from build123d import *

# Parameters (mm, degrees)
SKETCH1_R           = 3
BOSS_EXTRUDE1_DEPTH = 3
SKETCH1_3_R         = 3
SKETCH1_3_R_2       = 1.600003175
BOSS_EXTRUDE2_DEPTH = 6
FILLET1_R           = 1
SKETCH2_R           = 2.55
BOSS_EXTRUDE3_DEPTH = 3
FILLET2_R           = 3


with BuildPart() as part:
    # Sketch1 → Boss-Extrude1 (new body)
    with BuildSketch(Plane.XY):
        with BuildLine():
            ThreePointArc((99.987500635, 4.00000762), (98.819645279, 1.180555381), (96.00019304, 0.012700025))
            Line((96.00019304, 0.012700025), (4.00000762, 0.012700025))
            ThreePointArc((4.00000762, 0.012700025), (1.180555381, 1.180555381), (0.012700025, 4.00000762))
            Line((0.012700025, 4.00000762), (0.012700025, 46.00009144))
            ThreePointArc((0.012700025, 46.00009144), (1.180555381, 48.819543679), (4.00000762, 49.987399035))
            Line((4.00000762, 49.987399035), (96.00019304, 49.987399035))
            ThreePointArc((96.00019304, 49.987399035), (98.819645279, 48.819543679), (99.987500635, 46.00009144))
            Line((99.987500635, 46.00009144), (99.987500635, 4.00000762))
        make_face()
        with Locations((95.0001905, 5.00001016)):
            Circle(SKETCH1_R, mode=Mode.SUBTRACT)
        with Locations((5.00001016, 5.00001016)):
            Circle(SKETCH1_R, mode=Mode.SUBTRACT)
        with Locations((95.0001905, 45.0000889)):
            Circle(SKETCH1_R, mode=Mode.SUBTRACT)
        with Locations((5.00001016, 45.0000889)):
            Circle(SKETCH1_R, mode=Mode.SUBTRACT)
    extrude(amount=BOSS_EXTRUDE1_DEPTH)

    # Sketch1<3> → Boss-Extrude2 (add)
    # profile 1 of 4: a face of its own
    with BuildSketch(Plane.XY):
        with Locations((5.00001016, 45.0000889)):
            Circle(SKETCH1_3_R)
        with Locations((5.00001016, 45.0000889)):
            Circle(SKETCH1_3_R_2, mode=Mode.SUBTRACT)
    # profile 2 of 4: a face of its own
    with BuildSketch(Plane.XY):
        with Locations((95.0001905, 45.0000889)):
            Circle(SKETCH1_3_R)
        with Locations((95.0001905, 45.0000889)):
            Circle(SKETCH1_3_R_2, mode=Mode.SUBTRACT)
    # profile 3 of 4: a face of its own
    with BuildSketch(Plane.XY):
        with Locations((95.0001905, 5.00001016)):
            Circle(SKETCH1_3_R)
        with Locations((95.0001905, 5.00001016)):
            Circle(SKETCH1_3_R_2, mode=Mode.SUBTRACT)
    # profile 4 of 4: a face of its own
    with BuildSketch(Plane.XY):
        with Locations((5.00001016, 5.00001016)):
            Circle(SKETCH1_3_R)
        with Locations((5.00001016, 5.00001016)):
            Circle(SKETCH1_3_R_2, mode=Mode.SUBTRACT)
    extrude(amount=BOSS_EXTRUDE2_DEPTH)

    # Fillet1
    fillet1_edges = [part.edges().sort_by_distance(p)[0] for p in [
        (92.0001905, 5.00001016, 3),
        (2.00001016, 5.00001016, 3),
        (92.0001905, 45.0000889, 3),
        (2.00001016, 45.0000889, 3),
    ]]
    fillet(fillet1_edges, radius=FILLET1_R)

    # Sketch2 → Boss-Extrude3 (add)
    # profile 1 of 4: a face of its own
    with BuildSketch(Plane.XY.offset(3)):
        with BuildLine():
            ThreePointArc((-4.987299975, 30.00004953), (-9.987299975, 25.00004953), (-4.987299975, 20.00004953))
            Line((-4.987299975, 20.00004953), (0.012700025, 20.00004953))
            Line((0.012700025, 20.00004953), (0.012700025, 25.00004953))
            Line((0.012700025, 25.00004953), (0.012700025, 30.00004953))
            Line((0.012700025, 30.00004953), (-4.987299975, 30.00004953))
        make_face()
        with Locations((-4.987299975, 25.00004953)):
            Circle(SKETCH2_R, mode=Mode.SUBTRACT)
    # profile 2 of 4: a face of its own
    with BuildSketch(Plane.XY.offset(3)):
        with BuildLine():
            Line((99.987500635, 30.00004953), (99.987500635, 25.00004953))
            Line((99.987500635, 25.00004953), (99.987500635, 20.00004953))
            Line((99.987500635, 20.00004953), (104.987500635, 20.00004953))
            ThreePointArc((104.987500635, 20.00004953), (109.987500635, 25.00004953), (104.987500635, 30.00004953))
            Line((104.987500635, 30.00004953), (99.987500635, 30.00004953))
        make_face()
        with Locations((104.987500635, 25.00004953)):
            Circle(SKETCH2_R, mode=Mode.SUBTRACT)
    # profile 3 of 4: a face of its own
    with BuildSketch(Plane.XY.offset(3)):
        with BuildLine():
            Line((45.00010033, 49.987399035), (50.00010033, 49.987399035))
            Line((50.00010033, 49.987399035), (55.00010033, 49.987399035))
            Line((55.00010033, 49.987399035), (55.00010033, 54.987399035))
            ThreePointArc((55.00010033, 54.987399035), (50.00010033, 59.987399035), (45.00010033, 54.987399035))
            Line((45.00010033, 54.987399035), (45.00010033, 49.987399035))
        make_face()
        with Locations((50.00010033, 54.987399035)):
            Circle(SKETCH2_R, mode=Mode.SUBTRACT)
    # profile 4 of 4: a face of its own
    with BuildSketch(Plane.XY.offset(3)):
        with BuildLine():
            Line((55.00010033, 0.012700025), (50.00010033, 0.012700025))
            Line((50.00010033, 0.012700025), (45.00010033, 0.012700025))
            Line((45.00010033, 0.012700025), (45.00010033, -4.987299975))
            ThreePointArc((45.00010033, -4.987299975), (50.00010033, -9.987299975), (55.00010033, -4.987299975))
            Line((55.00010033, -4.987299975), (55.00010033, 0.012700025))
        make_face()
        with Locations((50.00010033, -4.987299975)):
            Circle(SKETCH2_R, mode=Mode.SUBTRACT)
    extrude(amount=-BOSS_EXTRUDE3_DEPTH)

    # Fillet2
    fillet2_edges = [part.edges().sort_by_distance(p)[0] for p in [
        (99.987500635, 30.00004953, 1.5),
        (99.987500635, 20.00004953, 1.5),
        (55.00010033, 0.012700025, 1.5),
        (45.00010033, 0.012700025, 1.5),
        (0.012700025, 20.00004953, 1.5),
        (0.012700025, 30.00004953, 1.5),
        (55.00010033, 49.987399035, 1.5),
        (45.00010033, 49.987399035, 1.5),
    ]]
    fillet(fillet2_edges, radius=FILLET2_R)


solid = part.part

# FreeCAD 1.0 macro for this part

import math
import FreeCAD as App
import Part
import Sketcher

V = App.Vector
Q = App.Units.Quantity


def edges_at(feature, points):
    """Names of the edges that pass closest to the given points."""
    edges = feature.Shape.Edges
    near = lambda p: min(range(len(edges)), key=lambda i: edges[i].distToShape(Part.Vertex(*p))[0])
    return sorted({f"Edge{near(p) + 1}" for p in points})

doc = App.newDocument("Part")
params = doc.addObject("Spreadsheet::Sheet", "Params")
for row, (alias, value) in enumerate([
    ("sketch1_diameter", "6 mm"),
    ("pad1_length", "3 mm"),
    ("sketch2_diameter", "6 mm"),
    ("pad2_length", "6 mm"),
    ("fillet_radius", "1 mm"),
    ("sketch3_radius", "5 mm"),
    ("sketch3_diameter", "5.1 mm"),
    ("sketch3_width", "5 mm"),
    ("pad3_length", "3 mm"),
    ("fillet2_radius", "3 mm"),
], start=1):
    params.set(f"A{row}", alias)
    params.set(f"B{row}", "=" + value)
    params.setAlias(f"B{row}", alias)

body = doc.addObject("PartDesign::Body", "Body")

# Sketch on XY plane
sketch1 = body.newObject("Sketcher::SketchObject", "Sketch")
sketch1.AttachmentSupport = (doc.getObject("XY_Plane"), [""])
sketch1.MapMode = "FlatFace"
sketch1.addGeometry([
    Part.ArcOfCircle(Part.Circle(V(96, 4, 0), V(0, 0, 1), 4), math.radians(-90), math.radians(0)),  # 0
    Part.LineSegment(V(100, 4, 0), V(100, 46, 0)),  # 1
    Part.ArcOfCircle(Part.Circle(V(96, 46, 0), V(0, 0, 1), 4), math.radians(0), math.radians(90)),  # 2
    Part.LineSegment(V(96, 50, 0), V(4, 50, 0)),  # 3
    Part.ArcOfCircle(Part.Circle(V(4, 46, 0), V(0, 0, 1), 4), math.radians(90), math.radians(180)),  # 4
    Part.LineSegment(V(0, 46, 0), V(0, 4, 0)),  # 5
    Part.ArcOfCircle(Part.Circle(V(4, 4, 0), V(0, 0, 1), 4), math.radians(180), math.radians(270)),  # 6
    Part.LineSegment(V(4, 0, 0), V(96, 0, 0)),  # 7
    Part.Circle(V(95, 5, 0), V(0, 0, 1), 3),  # 8
    Part.Circle(V(5, 5, 0), V(0, 0, 1), 3),  # 9
    Part.Circle(V(95, 45, 0), V(0, 0, 1), 3),  # 10
    Part.Circle(V(5, 45, 0), V(0, 0, 1), 3),  # 11
], False)
sketch1.addConstraint([
    Sketcher.Constraint("Tangent", 0, 2, 1, 1),
    Sketcher.Constraint("Tangent", 1, 2, 2, 1),
    Sketcher.Constraint("Tangent", 2, 2, 3, 1),
    Sketcher.Constraint("Tangent", 3, 2, 4, 1),
    Sketcher.Constraint("Tangent", 4, 2, 5, 1),
    Sketcher.Constraint("Tangent", 5, 2, 6, 1),
    Sketcher.Constraint("Tangent", 6, 2, 7, 1),
    Sketcher.Constraint("Tangent", 7, 2, 0, 1),
    Sketcher.Constraint("Vertical", 1),
    Sketcher.Constraint("Horizontal", 3),
    Sketcher.Constraint("Vertical", 5),
    Sketcher.Constraint("Horizontal", 7),
    Sketcher.Constraint("Equal", 0, 2),
    Sketcher.Constraint("Equal", 2, 4),
    Sketcher.Constraint("Equal", 4, 6),
    Sketcher.Constraint("Equal", 8, 9),
    Sketcher.Constraint("Equal", 9, 10),
    Sketcher.Constraint("Equal", 10, 11),
    Sketcher.Constraint("Horizontal", 8, 3, 9, 3),
    Sketcher.Constraint("Horizontal", 10, 3, 11, 3),
    Sketcher.Constraint("Vertical", 8, 3, 10, 3),
    Sketcher.Constraint("Vertical", 9, 3, 11, 3),
    Sketcher.Constraint("Diameter", 8, Q("6 mm")),
    Sketcher.Constraint("Radius", 0, Q("3.987308 mm")),
    Sketcher.Constraint("DistanceX", -1, 1, 0, 2, Q("99.987501 mm")),
    Sketcher.Constraint("DistanceY", -1, 1, 2, 2, Q("49.987399 mm")),
    Sketcher.Constraint("DistanceX", -1, 1, 4, 2, Q("0.0127 mm")),
    Sketcher.Constraint("DistanceY", -1, 1, 6, 2, Q("0.0127 mm")),
    Sketcher.Constraint("DistanceX", -1, 1, 8, 3, Q("95.000191 mm")),
    Sketcher.Constraint("DistanceY", -1, 1, 8, 3, Q("5.00001 mm")),
    Sketcher.Constraint("DistanceX", -1, 1, 9, 3, Q("5.00001 mm")),
    Sketcher.Constraint("DistanceY", -1, 1, 10, 3, Q("45.000089 mm")),
])
sketch1.setExpression("Constraints[22]", "Params.sketch1_diameter")
pad1 = body.newObject("PartDesign::Pad", "Pad")
pad1.Profile = sketch1
pad1.setExpression("Length", "Params.pad1_length")

# Sketch on XY plane
sketch2 = body.newObject("Sketcher::SketchObject", "Sketch001")
sketch2.AttachmentSupport = (doc.getObject("XY_Plane"), [""])
sketch2.MapMode = "FlatFace"
sketch2.addGeometry([
    Part.Circle(V(5, 45, 0), V(0, 0, 1), 3),  # 0
    Part.Circle(V(5, 45, 0), V(0, 0, 1), 1.6),  # 1
    Part.Circle(V(95, 45, 0), V(0, 0, 1), 3),  # 2
    Part.Circle(V(95, 45, 0), V(0, 0, 1), 1.6),  # 3
    Part.Circle(V(95, 5, 0), V(0, 0, 1), 3),  # 4
    Part.Circle(V(95, 5, 0), V(0, 0, 1), 1.6),  # 5
    Part.Circle(V(5, 5, 0), V(0, 0, 1), 3),  # 6
    Part.Circle(V(5, 5, 0), V(0, 0, 1), 1.6),  # 7
], False)
sketch2.addConstraint([
    Sketcher.Constraint("Coincident", 1, 3, 0, 3),
    Sketcher.Constraint("Coincident", 3, 3, 2, 3),
    Sketcher.Constraint("Coincident", 5, 3, 4, 3),
    Sketcher.Constraint("Coincident", 7, 3, 6, 3),
    Sketcher.Constraint("Equal", 0, 2),
    Sketcher.Constraint("Equal", 1, 3),
    Sketcher.Constraint("Equal", 2, 4),
    Sketcher.Constraint("Equal", 3, 5),
    Sketcher.Constraint("Equal", 4, 6),
    Sketcher.Constraint("Equal", 5, 7),
    Sketcher.Constraint("Horizontal", 1, 3, 2, 3),
    Sketcher.Constraint("Horizontal", 5, 3, 6, 3),
    Sketcher.Constraint("Vertical", 3, 3, 4, 3),
    Sketcher.Constraint("Vertical", 1, 3, 6, 3),
    Sketcher.Constraint("Diameter", 0, Q("6 mm")),
    Sketcher.Constraint("Diameter", 1, Q("3.200006 mm")),
    Sketcher.Constraint("DistanceX", -1, 1, 0, 3, Q("5.00001 mm")),
    Sketcher.Constraint("DistanceY", -1, 1, 0, 3, Q("45.000089 mm")),
    Sketcher.Constraint("DistanceX", -1, 1, 2, 3, Q("95.000191 mm")),
    Sketcher.Constraint("DistanceY", -1, 1, 4, 3, Q("5.00001 mm")),
])
sketch2.setExpression("Constraints[14]", "Params.sketch2_diameter")
pad2 = body.newObject("PartDesign::Pad", "Pad001")
pad2.Profile = sketch2
pad2.setExpression("Length", "Params.pad2_length")
doc.recompute()

fillet = body.newObject("PartDesign::Fillet", "Fillet")
fillet.Base = (pad2, edges_at(pad2, [
    (92, 5, 3),
    (2, 5, 3),
    (92, 45, 3),
    (2, 45, 3),
]))
fillet.setExpression("Radius", "Params.fillet_radius")

# Sketch on XY plane
sketch3 = body.newObject("Sketcher::SketchObject", "Sketch002")
sketch3.AttachmentSupport = (doc.getObject("XY_Plane"), [""])
sketch3.MapMode = "FlatFace"
sketch3.AttachmentOffset = App.Placement(V(0, 0, 3), App.Rotation())
sketch3.addGeometry([
    Part.ArcOfCircle(Part.Circle(V(-5, 25, 0), V(0, 0, 1), 5), math.radians(90), math.radians(270)),  # 0
    Part.LineSegment(V(-5, 20, 0), V(0, 20, 0)),  # 1
    Part.LineSegment(V(0, 20, 0), V(0, 30, 0)),  # 2
    Part.LineSegment(V(0, 30, 0), V(-5, 30, 0)),  # 3
    Part.Circle(V(-5, 25, 0), V(0, 0, 1), 2.5),  # 4
    Part.LineSegment(V(100, 30, 0), V(100, 20, 0)),  # 5
    Part.LineSegment(V(100, 20, 0), V(105, 20, 0)),  # 6
    Part.ArcOfCircle(Part.Circle(V(105, 25, 0), V(0, 0, 1), 5), math.radians(-90), math.radians(90)),  # 7
    Part.LineSegment(V(105, 30, 0), V(100, 30, 0)),  # 8
    Part.Circle(V(105, 25, 0), V(0, 0, 1), 2.5),  # 9
    Part.LineSegment(V(45, 50, 0), V(55, 50, 0)),  # 10
    Part.LineSegment(V(55, 50, 0), V(55, 55, 0)),  # 11
    Part.ArcOfCircle(Part.Circle(V(50, 55, 0), V(0, 0, 1), 5), math.radians(0), math.radians(180)),  # 12
    Part.LineSegment(V(45, 55, 0), V(45, 50, 0)),  # 13
    Part.Circle(V(50, 55, 0), V(0, 0, 1), 2.5),  # 14
    Part.LineSegment(V(55, 0, 0), V(45, 0, 0)),  # 15
    Part.LineSegment(V(45, 0, 0), V(45, -5, 0)),  # 16
    Part.ArcOfCircle(Part.Circle(V(50, -5, 0), V(0, 0, 1), 5), math.radians(180), math.radians(360)),  # 17
    Part.LineSegment(V(55, -5, 0), V(55, 0, 0)),  # 18
    Part.Circle(V(50, -5, 0), V(0, 0, 1), 2.5),  # 19
], False)
sketch3.addConstraint([
    Sketcher.Constraint("Tangent", 0, 2, 1, 1),
    Sketcher.Constraint("Coincident", 1, 2, 2, 1),
    Sketcher.Constraint("Coincident", 2, 2, 3, 1),
    Sketcher.Constraint("Tangent", 3, 2, 0, 1),
    Sketcher.Constraint("Coincident", 5, 2, 6, 1),
    Sketcher.Constraint("Tangent", 6, 2, 7, 1),
    Sketcher.Constraint("Tangent", 7, 2, 8, 1),
    Sketcher.Constraint("Coincident", 8, 2, 5, 1),
    Sketcher.Constraint("Coincident", 10, 2, 11, 1),
    Sketcher.Constraint("Tangent", 11, 2, 12, 1),
    Sketcher.Constraint("Tangent", 12, 2, 13, 1),
    Sketcher.Constraint("Coincident", 13, 2, 10, 1),
    Sketcher.Constraint("Coincident", 15, 2, 16, 1),
    Sketcher.Constraint("Tangent", 16, 2, 17, 1),
    Sketcher.Constraint("Tangent", 17, 2, 18, 1),
    Sketcher.Constraint("Coincident", 18, 2, 15, 1),
    Sketcher.Constraint("Horizontal", 1),
    Sketcher.Constraint("Vertical", 2),
    Sketcher.Constraint("Horizontal", 3),
    Sketcher.Constraint("Vertical", 5),
    Sketcher.Constraint("Horizontal", 6),
    Sketcher.Constraint("Horizontal", 8),
    Sketcher.Constraint("Horizontal", 10),
    Sketcher.Constraint("Vertical", 11),
    Sketcher.Constraint("Vertical", 13),
    Sketcher.Constraint("Horizontal", 15),
    Sketcher.Constraint("Vertical", 16),
    Sketcher.Constraint("Vertical", 18),
    Sketcher.Constraint("Coincident", 4, 3, 0, 3),
    Sketcher.Constraint("Coincident", 9, 3, 7, 3),
    Sketcher.Constraint("Coincident", 14, 3, 12, 3),
    Sketcher.Constraint("Coincident", 19, 3, 17, 3),
    Sketcher.Constraint("Equal", 0, 7),
    Sketcher.Constraint("Equal", 4, 9),
    Sketcher.Constraint("Equal", 7, 12),
    Sketcher.Constraint("Equal", 9, 14),
    Sketcher.Constraint("Equal", 12, 17),
    Sketcher.Constraint("Equal", 14, 19),
    Sketcher.Constraint("Horizontal", 4, 3, 7, 3),
    Sketcher.Constraint("Vertical", 14, 3, 17, 3),
    Sketcher.Constraint("Equal", 3, 6),
    Sketcher.Constraint("Equal", 8, 11),
    Sketcher.Constraint("Equal", 13, 16),
    Sketcher.Constraint("Radius", 0, Q("5 mm")),
    Sketcher.Constraint("Diameter", 4, Q("5.1 mm")),
    Sketcher.Constraint("DistanceX", 1, 1, 1, 2, Q("5 mm")),
    Sketcher.Constraint("DistanceX", 0, 3, -1, 1, Q("4.9873 mm")),
    Sketcher.Constraint("DistanceX", -1, 1, 7, 3, Q("104.987501 mm")),
    Sketcher.Constraint("DistanceX", -1, 1, 12, 3, Q("50.0001 mm")),
    Sketcher.Constraint("DistanceY", -1, 1, 12, 3, Q("54.987399 mm")),
    Sketcher.Constraint("DistanceY", 17, 3, -1, 1, Q("4.9873 mm")),
    Sketcher.Constraint("DistanceY", -1, 1, 0, 3, Q("25.00005 mm")),
])
sketch3.setExpression("Constraints[43]", "Params.sketch3_radius")
sketch3.setExpression("Constraints[44]", "Params.sketch3_diameter")
sketch3.setExpression("Constraints[45]", "Params.sketch3_width")
pad3 = body.newObject("PartDesign::Pad", "Pad002")
pad3.Profile = sketch3
pad3.setExpression("Length", "Params.pad3_length")
pad3.Reversed = True
doc.recompute()

fillet2 = body.newObject("PartDesign::Fillet", "Fillet001")
fillet2.Base = (pad3, edges_at(pad3, [
    (99.988, 30, 1.5),
    (99.988, 20, 1.5),
    (55, 0.013, 1.5),
    (45, 0.013, 1.5),
    (0.013, 20, 1.5),
    (0.013, 30, 1.5),
    (55, 49.987, 1.5),
    (45, 49.987, 1.5),
]))
fillet2.setExpression("Radius", "Params.fillet2_radius")

doc.recompute()
